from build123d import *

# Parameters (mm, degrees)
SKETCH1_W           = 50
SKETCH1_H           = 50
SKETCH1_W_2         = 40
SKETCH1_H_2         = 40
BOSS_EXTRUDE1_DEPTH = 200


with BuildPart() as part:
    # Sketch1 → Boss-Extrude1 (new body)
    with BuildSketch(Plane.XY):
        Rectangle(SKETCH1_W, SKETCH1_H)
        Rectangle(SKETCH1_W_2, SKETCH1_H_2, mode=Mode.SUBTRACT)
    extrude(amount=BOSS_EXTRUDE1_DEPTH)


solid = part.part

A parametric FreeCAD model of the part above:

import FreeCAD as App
import Part
import Sketcher
Q = App.Units.Quantity


def add_polygon(sketch, points):
    """Adds a closed chain of lines whose ends are joined by coincident constraints."""
    first, n = sketch.GeometryCount, len(points)
    for a, b in zip(points, points[1:] + points[:1]):
        sketch.addGeometry(Part.LineSegment(App.Vector(*a, 0), App.Vector(*b, 0)), False)
    for i in range(n):
        sketch.addConstraint(Sketcher.Constraint("Coincident", first + i, 2, first + (i + 1) % n, 1))

doc = App.newDocument("Part")
body = doc.addObject("PartDesign::Body", "Body")

# Sketch on XY plane
sketch1 = body.newObject("Sketcher::SketchObject", "Sketch")
sketch1.AttachmentSupport = (doc.getObject("XY_Plane"), [""])
sketch1.MapMode = "FlatFace"
add_polygon(sketch1, [(-25, 25), (-25, -25), (25, -25), (25, 25)])  # lines 0-3
add_polygon(sketch1, [(20, -20), (-20, -20), (-20, 20), (20, 20)])  # lines 4-7
sketch1.addConstraint([
    Sketcher.Constraint("Vertical", 0),
    Sketcher.Constraint("Horizontal", 1),
    Sketcher.Constraint("Vertical", 2),
    Sketcher.Constraint("Horizontal", 3),
    Sketcher.Constraint("Horizontal", 4),
    Sketcher.Constraint("Vertical", 5),
    Sketcher.Constraint("Horizontal", 6),
    Sketcher.Constraint("Vertical", 7),
    Sketcher.Constraint("Symmetric", 0, 2, 2, 2, -1, 1),
    Sketcher.Constraint("Symmetric", 4, 2, 6, 2, -1, 1),
    Sketcher.Constraint("Equal", 3, 0),
    Sketcher.Constraint("Equal", 6, 5),
    Sketcher.Constraint("DistanceX", 1, 1, 1, 2, Q("50 mm")),
    Sketcher.Constraint("DistanceX", 4, 2, 4, 1, Q("40 mm")),
])
pad1 = body.newObject("PartDesign::Pad", "Pad")
pad1.Profile = sketch1
pad1.Length = 200

doc.recompute()
